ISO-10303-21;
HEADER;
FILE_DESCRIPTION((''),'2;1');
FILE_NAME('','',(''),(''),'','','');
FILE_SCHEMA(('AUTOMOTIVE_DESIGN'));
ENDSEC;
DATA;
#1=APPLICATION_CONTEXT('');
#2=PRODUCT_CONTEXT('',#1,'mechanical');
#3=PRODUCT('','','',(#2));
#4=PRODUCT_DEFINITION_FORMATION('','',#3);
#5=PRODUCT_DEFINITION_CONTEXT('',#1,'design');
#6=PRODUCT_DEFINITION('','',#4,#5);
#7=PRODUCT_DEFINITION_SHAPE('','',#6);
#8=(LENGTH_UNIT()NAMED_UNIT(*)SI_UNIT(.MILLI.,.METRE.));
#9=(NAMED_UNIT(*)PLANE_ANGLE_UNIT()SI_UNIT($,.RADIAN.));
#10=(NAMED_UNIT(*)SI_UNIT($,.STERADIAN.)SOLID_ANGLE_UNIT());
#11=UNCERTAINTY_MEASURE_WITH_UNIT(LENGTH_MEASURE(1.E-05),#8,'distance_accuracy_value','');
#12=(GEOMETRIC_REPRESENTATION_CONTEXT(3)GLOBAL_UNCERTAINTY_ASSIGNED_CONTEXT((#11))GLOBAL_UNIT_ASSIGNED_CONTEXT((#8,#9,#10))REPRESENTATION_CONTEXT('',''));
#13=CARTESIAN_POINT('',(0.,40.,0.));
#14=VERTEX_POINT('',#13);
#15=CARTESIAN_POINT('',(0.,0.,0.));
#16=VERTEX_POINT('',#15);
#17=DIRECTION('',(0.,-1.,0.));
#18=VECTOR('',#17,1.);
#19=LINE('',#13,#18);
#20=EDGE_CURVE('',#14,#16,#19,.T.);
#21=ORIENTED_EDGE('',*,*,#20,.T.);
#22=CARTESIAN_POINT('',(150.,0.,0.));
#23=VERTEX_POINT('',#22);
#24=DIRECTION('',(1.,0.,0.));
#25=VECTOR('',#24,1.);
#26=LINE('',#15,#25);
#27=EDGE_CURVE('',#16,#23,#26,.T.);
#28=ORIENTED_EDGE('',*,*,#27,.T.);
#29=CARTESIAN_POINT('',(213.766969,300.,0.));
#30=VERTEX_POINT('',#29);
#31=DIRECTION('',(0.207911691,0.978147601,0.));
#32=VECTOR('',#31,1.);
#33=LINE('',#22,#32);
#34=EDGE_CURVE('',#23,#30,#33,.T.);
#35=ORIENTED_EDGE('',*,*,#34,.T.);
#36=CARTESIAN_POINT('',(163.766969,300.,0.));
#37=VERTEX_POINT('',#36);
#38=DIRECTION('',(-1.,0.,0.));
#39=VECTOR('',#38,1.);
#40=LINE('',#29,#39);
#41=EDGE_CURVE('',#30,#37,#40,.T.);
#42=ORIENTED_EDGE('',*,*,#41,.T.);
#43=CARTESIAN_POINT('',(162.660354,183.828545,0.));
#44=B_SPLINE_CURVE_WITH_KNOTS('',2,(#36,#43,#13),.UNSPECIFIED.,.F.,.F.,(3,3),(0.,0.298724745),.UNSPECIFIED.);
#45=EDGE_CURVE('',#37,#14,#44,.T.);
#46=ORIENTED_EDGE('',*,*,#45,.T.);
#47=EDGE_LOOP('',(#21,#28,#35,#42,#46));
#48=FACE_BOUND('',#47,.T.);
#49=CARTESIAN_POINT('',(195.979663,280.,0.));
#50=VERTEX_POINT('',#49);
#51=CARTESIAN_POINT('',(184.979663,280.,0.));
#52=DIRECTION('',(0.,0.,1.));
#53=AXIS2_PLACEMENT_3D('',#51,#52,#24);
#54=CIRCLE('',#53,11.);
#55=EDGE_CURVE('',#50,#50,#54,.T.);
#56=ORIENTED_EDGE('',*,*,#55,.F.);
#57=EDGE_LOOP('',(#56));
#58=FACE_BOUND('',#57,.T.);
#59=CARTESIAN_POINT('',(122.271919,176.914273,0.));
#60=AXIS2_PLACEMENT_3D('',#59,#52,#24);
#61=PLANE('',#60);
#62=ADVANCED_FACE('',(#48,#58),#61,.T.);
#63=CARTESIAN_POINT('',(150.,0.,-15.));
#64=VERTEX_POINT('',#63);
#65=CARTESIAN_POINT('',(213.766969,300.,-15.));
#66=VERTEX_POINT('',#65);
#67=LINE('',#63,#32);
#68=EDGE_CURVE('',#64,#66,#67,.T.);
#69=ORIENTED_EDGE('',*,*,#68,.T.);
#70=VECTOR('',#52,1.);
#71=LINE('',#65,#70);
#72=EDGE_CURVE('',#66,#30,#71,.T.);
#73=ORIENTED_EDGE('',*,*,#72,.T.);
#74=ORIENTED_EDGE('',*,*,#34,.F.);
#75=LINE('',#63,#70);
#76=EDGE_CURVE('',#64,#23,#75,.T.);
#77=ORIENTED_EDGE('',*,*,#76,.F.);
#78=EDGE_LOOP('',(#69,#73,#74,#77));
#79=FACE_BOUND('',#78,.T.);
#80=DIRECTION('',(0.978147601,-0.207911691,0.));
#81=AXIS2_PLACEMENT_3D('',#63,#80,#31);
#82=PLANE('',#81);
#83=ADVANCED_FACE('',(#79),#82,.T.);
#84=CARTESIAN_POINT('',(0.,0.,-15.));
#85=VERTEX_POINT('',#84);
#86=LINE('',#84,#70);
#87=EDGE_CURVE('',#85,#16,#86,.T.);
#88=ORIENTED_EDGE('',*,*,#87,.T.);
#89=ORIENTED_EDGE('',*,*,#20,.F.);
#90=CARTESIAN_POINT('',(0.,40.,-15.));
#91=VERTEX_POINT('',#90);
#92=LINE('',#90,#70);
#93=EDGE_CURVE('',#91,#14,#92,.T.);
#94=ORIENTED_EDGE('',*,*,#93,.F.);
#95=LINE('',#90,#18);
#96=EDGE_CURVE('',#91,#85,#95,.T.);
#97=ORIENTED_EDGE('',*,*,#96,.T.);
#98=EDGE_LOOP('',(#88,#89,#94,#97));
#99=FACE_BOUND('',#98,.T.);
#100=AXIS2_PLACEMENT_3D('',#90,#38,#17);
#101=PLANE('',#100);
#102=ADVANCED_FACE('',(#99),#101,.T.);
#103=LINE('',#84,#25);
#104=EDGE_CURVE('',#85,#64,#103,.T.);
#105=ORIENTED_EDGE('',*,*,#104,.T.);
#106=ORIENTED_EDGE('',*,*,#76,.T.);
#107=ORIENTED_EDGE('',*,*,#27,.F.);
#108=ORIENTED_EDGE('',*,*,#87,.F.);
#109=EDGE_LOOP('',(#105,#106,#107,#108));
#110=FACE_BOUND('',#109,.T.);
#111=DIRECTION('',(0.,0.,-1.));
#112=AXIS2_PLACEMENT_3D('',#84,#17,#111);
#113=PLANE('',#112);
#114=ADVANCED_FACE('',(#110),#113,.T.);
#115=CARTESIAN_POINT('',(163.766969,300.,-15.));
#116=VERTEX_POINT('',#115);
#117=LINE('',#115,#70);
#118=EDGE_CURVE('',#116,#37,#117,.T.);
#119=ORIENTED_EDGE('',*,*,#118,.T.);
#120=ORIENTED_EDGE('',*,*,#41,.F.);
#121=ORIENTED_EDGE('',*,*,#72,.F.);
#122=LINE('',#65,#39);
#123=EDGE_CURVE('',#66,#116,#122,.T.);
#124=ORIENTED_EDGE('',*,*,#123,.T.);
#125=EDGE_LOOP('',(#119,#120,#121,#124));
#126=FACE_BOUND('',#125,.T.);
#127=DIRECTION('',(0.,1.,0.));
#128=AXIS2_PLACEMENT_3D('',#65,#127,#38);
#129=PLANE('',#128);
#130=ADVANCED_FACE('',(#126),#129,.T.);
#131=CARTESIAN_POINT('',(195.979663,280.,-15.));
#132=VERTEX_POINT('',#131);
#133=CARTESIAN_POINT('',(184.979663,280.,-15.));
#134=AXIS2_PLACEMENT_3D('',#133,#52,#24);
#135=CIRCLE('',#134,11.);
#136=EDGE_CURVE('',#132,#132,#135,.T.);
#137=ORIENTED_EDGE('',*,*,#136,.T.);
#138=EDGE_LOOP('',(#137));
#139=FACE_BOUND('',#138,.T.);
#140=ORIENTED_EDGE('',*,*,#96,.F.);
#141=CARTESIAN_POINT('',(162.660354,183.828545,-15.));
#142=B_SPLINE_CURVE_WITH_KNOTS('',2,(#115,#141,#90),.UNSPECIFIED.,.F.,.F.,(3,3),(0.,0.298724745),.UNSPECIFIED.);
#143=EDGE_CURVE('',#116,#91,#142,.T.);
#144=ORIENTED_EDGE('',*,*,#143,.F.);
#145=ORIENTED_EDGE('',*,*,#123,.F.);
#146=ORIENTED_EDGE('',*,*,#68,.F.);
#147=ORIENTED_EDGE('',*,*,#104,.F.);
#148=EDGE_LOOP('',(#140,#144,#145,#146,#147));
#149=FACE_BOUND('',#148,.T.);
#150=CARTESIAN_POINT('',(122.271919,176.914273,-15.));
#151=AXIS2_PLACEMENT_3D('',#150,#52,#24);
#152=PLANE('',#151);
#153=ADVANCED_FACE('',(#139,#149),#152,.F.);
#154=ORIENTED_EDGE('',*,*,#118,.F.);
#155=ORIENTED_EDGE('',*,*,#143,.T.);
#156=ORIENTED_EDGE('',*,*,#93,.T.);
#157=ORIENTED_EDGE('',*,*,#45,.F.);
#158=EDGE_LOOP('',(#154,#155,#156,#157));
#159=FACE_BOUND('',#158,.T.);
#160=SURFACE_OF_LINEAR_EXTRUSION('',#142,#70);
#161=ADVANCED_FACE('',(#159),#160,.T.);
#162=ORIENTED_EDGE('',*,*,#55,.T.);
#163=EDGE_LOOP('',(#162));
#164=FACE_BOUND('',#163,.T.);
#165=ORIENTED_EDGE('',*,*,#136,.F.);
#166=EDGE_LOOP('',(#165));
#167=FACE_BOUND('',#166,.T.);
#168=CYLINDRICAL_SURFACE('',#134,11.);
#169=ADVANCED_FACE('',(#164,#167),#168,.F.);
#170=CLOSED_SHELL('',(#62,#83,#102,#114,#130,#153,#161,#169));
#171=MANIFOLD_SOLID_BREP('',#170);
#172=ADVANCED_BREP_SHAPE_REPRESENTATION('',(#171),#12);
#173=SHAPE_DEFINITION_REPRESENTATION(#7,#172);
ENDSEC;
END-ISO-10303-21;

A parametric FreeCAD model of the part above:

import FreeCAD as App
import Part
import Sketcher
from FreeCAD import Vector

doc = App.newDocument("Part")
body = doc.addObject("PartDesign::Body", "Body")

# Sketch on XY plane
sketch1 = body.newObject("Sketcher::SketchObject", "Sketch")
sketch1.AttachmentSupport = (doc.getObject("XY_Plane"), [""])
sketch1.MapMode = "FlatFace"
sketch1.addGeometry([
    Part.LineSegment(Vector(0, 0, 0), Vector(150, 0, 0)),  # 0
    Part.LineSegment(Vector(150, 0, 0), Vector(213.766969, 300, 0)),  # 1
    Part.LineSegment(Vector(213.766969, 300, 0), Vector(163.766969, 300, 0)),  # 2
    Part.BSplineCurve([Vector(163.766969, 300, 0), Vector(162.660354, 183.828545, 0), Vector(0, 40, 0)], [3, 3], [0, 0.298724745], False, 2, [1, 1, 1], False),  # 3
    Part.LineSegment(Vector(0, 40, 0), Vector(0, 0, 0)),  # 4
], False)
sketch1.addConstraint([
    Sketcher.Constraint("Block", 3),
    Sketcher.Constraint("Coincident", 0, 2, 1, 1),
    Sketcher.Constraint("Coincident", 1, 2, 2, 1),
    Sketcher.Constraint("Coincident", 2, 2, 3, 1),
    Sketcher.Constraint("Coincident", 3, 2, 4, 1),
    Sketcher.Constraint("Coincident", 4, 2, 0, 1),
    Sketcher.Constraint("Horizontal", 0),
    Sketcher.Constraint("Horizontal", 2),
    Sketcher.Constraint("Vertical", 4),
    Sketcher.Constraint("PointOnObject", 0, 2, -1),
    Sketcher.Constraint("DistanceX", 0, 1, 0, 2, 150.0),
    Sketcher.Constraint("DistanceX", 2, 2, 2, 1, 50.0),
])
pad1 = body.newObject("PartDesign::Pad", "Pad")
pad1.Profile = sketch1
pad1.Length = 15
pad1.Reversed = True

# Sketch on XY plane
sketch2 = body.newObject("Sketcher::SketchObject", "Sketch001")
sketch2.AttachmentSupport = (doc.getObject("XY_Plane"), [""])
sketch2.MapMode = "FlatFace"
sketch2.addGeometry(Part.Circle(Vector(184.979663, 280, 0), Vector(0, 0, 1), 11), False)
sketch2.addConstraint([
    Sketcher.Constraint("Diameter", 0, 22.0),
    Sketcher.Constraint("DistanceY", -1, 1, 0, 3, 280.0),
    Sketcher.Constraint("DistanceX", -1, 1, 0, 3, 184.979663),
])
pocket1 = body.newObject("PartDesign::Pocket", "Pocket")
pocket1.Profile = sketch2
pocket1.Type = "ThroughAll"

doc.recompute()
